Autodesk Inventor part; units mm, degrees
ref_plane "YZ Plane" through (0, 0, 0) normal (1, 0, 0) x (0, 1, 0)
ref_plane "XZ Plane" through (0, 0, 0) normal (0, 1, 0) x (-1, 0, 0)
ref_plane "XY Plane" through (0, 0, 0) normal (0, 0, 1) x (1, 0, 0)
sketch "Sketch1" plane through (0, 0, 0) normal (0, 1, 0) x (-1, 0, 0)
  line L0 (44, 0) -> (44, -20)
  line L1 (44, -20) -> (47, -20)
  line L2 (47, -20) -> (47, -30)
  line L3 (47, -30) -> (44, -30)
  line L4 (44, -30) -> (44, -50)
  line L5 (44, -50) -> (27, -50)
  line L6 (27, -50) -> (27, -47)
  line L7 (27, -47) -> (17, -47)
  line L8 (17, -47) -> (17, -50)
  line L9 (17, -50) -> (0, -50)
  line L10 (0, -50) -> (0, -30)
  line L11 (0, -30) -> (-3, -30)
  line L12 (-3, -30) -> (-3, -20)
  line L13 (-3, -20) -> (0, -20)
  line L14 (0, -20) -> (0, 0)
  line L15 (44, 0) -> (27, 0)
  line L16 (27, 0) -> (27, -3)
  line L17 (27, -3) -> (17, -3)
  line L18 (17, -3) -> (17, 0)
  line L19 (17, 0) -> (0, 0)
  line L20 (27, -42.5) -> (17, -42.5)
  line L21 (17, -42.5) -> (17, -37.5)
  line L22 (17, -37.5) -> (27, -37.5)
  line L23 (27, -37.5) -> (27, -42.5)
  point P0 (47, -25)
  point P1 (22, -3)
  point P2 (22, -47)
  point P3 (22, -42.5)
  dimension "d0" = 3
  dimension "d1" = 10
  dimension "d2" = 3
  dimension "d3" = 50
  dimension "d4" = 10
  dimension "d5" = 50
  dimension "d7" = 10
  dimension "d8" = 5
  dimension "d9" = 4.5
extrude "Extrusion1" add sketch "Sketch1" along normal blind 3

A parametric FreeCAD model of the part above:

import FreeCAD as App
import Part
import Sketcher
Q = App.Units.Quantity


def add_polygon(sketch, points):
    """Adds a closed chain of lines whose ends are joined by coincident constraints."""
    first, n = sketch.GeometryCount, len(points)
    for a, b in zip(points, points[1:] + points[:1]):
        sketch.addGeometry(Part.LineSegment(App.Vector(*a, 0), App.Vector(*b, 0)), False)
    for i in range(n):
        sketch.addConstraint(Sketcher.Constraint("Coincident", first + i, 2, first + (i + 1) % n, 1))

doc = App.newDocument("Part")
params = doc.addObject("Spreadsheet::Sheet", "Params")
for row, (alias, value) in enumerate([
    ("sketch1_width", "10 mm"),
    ("sketch1_width2", "3 mm"),
    ("sketch1_height", "5 mm"),
    ("sketch1_width3", "17 mm"),
    ("pad1_length", "3 mm"),
], start=1):
    params.set(f"A{row}", alias)
    params.set(f"B{row}", "=" + value)
    params.setAlias(f"B{row}", alias)

body = doc.addObject("PartDesign::Body", "Body")

# Sketch on XZ plane
sketch1 = body.newObject("Sketcher::SketchObject", "Sketch")
sketch1.AttachmentSupport = (doc.getObject("XZ_Plane"), [""])
sketch1.MapMode = "FlatFace"
add_polygon(sketch1, [(-44, -20), (-44, 0), (-27, 0), (-27, -3), (-17, -3), (-17, 0), (0, 0), (0, -20), (3, -20), (3, -30), (0, -30), (0, -50), (-17, -50), (-17, -47), (-27, -47), (-27, -50), (-44, -50), (-44, -30), (-47, -30), (-47, -20)])  # lines 0-19
add_polygon(sketch1, [(-27, -37.5), (-27, -42.5), (-17, -42.5), (-17, -37.5)])  # lines 20-23
sketch1.addConstraint([
    Sketcher.Constraint("Vertical", 0),
    Sketcher.Constraint("Horizontal", 1),
    Sketcher.Constraint("Vertical", 2),
    Sketcher.Constraint("Horizontal", 3),
    Sketcher.Constraint("Vertical", 4),
    Sketcher.Constraint("Horizontal", 5),
    Sketcher.Constraint("Vertical", 6),
    Sketcher.Constraint("Horizontal", 7),
    Sketcher.Constraint("Vertical", 8),
    Sketcher.Constraint("Horizontal", 9),
    Sketcher.Constraint("Vertical", 10),
    Sketcher.Constraint("Horizontal", 11),
    Sketcher.Constraint("Vertical", 12),
    Sketcher.Constraint("Horizontal", 13),
    Sketcher.Constraint("Vertical", 14),
    Sketcher.Constraint("Horizontal", 15),
    Sketcher.Constraint("Vertical", 16),
    Sketcher.Constraint("Horizontal", 17),
    Sketcher.Constraint("Vertical", 18),
    Sketcher.Constraint("Horizontal", 19),
    Sketcher.Constraint("Vertical", 20),
    Sketcher.Constraint("Horizontal", 21),
    Sketcher.Constraint("Vertical", 22),
    Sketcher.Constraint("Horizontal", 23),
    Sketcher.Constraint("Coincident", 5, 2, -1, 1),
    Sketcher.Constraint("PointOnObject", 0, 2, -1),
    Sketcher.Constraint("PointOnObject", 9, 2, -2),
    Sketcher.Constraint("Horizontal", 11, 2, 14, 2),
    Sketcher.Constraint("Horizontal", 9, 2, 16, 2),
    Sketcher.Constraint("Horizontal", 7, 2, 18, 2),
    Sketcher.Constraint("Vertical", 4, 2, 11, 2),
    Sketcher.Constraint("Vertical", 2, 2, 13, 2),
    Sketcher.Constraint("Vertical", 0, 2, 15, 2),
    Sketcher.Constraint("Vertical", 14, 2, 20, 2),
    Sketcher.Constraint("Vertical", 12, 2, 21, 2),
    Sketcher.Constraint("Equal", 1, 5),
    Sketcher.Constraint("Equal", 9, 17),
    Sketcher.Constraint("Equal", 19, 2),
    Sketcher.Constraint("Equal", 23, 8),
    Sketcher.Constraint("Equal", 6, 10),
    Sketcher.Constraint("Equal", 4, 12),
    Sketcher.Constraint("DistanceX", 3, 1, 3, 2, Q("10 mm")),
    Sketcher.Constraint("DistanceX", 7, 1, 7, 2, Q("3 mm")),
    Sketcher.Constraint("DistanceY", 20, 2, 20, 1, Q("5 mm")),
    Sketcher.Constraint("DistanceY", 10, 2, -1, 1, Q("50 mm")),
    Sketcher.Constraint("DistanceY", 13, 2, 20, 2, Q("4.5 mm")),
    Sketcher.Constraint("DistanceX", 1, 1, 1, 2, Q("17 mm")),
])
sketch1.setExpression("Constraints[65]", "Params.sketch1_width")
sketch1.setExpression("Constraints[66]", "Params.sketch1_width2")
sketch1.setExpression("Constraints[67]", "Params.sketch1_height")
sketch1.setExpression("Constraints[70]", "Params.sketch1_width3")
pad1 = body.newObject("PartDesign::Pad", "Pad")
pad1.Profile = sketch1
pad1.setExpression("Length", "Params.pad1_length")
pad1.Reversed = True

doc.recompute()
